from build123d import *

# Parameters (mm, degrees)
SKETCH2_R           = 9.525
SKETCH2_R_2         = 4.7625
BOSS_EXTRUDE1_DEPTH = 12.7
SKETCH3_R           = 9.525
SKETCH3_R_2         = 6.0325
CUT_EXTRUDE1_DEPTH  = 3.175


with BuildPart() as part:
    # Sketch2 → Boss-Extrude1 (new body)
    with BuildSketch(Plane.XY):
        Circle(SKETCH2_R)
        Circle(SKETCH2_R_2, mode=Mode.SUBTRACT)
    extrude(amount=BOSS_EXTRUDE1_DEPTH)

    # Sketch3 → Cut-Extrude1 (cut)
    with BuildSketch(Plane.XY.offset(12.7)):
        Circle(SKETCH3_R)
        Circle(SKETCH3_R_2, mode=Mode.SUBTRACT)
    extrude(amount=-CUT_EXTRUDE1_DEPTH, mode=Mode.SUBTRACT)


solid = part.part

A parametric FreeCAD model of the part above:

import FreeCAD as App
import Part
import Sketcher
from FreeCAD import Vector
Q = App.Units.Quantity

doc = App.newDocument("Part")
body = doc.addObject("PartDesign::Body", "Body")

# Sketch on XY plane
sketch1 = body.newObject("Sketcher::SketchObject", "Sketch")
sketch1.AttachmentSupport = (doc.getObject("XY_Plane"), [""])
sketch1.MapMode = "FlatFace"
sketch1.addGeometry(Part.Circle(Vector(0, 0, 0), Vector(0, 0, 1), 9.5), False)
sketch1.addGeometry(Part.Circle(Vector(0, 0, 0), Vector(0, 0, 1), 4.8), False)
sketch1.addConstraint(Sketcher.Constraint("Coincident", 0, 3, -1, 1))
sketch1.addConstraint(Sketcher.Constraint("Coincident", 1, 3, -1, 1))
sketch1.addConstraint(Sketcher.Constraint("Diameter", 0, Q("0.75 in")))
sketch1.addConstraint(Sketcher.Constraint("Diameter", 1, Q("0.375 in")))
pad1 = body.newObject("PartDesign::Pad", "Pad")
pad1.Profile = sketch1
pad1.Length = Q("0.5 in")

# Sketch on XY plane
sketch2 = body.newObject("Sketcher::SketchObject", "Sketch001")
sketch2.AttachmentSupport = (doc.getObject("XY_Plane"), [""])
sketch2.MapMode = "FlatFace"
sketch2.AttachmentOffset = App.Placement(Vector(0, 0, 0.5 * 25.4), App.Rotation())
sketch2.addGeometry(Part.Circle(Vector(0, 0, 0), Vector(0, 0, 1), 10), False)
sketch2.addGeometry(Part.Circle(Vector(0, 0, 0), Vector(0, 0, 1), 6), False)
sketch2.addConstraint(Sketcher.Constraint("Coincident", 0, 3, -1, 1))
sketch2.addConstraint(Sketcher.Constraint("Coincident", 1, 3, -1, 1))
sketch2.addConstraint(Sketcher.Constraint("Diameter", 0, Q("0.75 in")))
sketch2.addConstraint(Sketcher.Constraint("Diameter", 1, Q("0.475 in")))
pocket1 = body.newObject("PartDesign::Pocket", "Pocket")
pocket1.Profile = sketch2
pocket1.Length = Q("0.125 in")

doc.recompute()
